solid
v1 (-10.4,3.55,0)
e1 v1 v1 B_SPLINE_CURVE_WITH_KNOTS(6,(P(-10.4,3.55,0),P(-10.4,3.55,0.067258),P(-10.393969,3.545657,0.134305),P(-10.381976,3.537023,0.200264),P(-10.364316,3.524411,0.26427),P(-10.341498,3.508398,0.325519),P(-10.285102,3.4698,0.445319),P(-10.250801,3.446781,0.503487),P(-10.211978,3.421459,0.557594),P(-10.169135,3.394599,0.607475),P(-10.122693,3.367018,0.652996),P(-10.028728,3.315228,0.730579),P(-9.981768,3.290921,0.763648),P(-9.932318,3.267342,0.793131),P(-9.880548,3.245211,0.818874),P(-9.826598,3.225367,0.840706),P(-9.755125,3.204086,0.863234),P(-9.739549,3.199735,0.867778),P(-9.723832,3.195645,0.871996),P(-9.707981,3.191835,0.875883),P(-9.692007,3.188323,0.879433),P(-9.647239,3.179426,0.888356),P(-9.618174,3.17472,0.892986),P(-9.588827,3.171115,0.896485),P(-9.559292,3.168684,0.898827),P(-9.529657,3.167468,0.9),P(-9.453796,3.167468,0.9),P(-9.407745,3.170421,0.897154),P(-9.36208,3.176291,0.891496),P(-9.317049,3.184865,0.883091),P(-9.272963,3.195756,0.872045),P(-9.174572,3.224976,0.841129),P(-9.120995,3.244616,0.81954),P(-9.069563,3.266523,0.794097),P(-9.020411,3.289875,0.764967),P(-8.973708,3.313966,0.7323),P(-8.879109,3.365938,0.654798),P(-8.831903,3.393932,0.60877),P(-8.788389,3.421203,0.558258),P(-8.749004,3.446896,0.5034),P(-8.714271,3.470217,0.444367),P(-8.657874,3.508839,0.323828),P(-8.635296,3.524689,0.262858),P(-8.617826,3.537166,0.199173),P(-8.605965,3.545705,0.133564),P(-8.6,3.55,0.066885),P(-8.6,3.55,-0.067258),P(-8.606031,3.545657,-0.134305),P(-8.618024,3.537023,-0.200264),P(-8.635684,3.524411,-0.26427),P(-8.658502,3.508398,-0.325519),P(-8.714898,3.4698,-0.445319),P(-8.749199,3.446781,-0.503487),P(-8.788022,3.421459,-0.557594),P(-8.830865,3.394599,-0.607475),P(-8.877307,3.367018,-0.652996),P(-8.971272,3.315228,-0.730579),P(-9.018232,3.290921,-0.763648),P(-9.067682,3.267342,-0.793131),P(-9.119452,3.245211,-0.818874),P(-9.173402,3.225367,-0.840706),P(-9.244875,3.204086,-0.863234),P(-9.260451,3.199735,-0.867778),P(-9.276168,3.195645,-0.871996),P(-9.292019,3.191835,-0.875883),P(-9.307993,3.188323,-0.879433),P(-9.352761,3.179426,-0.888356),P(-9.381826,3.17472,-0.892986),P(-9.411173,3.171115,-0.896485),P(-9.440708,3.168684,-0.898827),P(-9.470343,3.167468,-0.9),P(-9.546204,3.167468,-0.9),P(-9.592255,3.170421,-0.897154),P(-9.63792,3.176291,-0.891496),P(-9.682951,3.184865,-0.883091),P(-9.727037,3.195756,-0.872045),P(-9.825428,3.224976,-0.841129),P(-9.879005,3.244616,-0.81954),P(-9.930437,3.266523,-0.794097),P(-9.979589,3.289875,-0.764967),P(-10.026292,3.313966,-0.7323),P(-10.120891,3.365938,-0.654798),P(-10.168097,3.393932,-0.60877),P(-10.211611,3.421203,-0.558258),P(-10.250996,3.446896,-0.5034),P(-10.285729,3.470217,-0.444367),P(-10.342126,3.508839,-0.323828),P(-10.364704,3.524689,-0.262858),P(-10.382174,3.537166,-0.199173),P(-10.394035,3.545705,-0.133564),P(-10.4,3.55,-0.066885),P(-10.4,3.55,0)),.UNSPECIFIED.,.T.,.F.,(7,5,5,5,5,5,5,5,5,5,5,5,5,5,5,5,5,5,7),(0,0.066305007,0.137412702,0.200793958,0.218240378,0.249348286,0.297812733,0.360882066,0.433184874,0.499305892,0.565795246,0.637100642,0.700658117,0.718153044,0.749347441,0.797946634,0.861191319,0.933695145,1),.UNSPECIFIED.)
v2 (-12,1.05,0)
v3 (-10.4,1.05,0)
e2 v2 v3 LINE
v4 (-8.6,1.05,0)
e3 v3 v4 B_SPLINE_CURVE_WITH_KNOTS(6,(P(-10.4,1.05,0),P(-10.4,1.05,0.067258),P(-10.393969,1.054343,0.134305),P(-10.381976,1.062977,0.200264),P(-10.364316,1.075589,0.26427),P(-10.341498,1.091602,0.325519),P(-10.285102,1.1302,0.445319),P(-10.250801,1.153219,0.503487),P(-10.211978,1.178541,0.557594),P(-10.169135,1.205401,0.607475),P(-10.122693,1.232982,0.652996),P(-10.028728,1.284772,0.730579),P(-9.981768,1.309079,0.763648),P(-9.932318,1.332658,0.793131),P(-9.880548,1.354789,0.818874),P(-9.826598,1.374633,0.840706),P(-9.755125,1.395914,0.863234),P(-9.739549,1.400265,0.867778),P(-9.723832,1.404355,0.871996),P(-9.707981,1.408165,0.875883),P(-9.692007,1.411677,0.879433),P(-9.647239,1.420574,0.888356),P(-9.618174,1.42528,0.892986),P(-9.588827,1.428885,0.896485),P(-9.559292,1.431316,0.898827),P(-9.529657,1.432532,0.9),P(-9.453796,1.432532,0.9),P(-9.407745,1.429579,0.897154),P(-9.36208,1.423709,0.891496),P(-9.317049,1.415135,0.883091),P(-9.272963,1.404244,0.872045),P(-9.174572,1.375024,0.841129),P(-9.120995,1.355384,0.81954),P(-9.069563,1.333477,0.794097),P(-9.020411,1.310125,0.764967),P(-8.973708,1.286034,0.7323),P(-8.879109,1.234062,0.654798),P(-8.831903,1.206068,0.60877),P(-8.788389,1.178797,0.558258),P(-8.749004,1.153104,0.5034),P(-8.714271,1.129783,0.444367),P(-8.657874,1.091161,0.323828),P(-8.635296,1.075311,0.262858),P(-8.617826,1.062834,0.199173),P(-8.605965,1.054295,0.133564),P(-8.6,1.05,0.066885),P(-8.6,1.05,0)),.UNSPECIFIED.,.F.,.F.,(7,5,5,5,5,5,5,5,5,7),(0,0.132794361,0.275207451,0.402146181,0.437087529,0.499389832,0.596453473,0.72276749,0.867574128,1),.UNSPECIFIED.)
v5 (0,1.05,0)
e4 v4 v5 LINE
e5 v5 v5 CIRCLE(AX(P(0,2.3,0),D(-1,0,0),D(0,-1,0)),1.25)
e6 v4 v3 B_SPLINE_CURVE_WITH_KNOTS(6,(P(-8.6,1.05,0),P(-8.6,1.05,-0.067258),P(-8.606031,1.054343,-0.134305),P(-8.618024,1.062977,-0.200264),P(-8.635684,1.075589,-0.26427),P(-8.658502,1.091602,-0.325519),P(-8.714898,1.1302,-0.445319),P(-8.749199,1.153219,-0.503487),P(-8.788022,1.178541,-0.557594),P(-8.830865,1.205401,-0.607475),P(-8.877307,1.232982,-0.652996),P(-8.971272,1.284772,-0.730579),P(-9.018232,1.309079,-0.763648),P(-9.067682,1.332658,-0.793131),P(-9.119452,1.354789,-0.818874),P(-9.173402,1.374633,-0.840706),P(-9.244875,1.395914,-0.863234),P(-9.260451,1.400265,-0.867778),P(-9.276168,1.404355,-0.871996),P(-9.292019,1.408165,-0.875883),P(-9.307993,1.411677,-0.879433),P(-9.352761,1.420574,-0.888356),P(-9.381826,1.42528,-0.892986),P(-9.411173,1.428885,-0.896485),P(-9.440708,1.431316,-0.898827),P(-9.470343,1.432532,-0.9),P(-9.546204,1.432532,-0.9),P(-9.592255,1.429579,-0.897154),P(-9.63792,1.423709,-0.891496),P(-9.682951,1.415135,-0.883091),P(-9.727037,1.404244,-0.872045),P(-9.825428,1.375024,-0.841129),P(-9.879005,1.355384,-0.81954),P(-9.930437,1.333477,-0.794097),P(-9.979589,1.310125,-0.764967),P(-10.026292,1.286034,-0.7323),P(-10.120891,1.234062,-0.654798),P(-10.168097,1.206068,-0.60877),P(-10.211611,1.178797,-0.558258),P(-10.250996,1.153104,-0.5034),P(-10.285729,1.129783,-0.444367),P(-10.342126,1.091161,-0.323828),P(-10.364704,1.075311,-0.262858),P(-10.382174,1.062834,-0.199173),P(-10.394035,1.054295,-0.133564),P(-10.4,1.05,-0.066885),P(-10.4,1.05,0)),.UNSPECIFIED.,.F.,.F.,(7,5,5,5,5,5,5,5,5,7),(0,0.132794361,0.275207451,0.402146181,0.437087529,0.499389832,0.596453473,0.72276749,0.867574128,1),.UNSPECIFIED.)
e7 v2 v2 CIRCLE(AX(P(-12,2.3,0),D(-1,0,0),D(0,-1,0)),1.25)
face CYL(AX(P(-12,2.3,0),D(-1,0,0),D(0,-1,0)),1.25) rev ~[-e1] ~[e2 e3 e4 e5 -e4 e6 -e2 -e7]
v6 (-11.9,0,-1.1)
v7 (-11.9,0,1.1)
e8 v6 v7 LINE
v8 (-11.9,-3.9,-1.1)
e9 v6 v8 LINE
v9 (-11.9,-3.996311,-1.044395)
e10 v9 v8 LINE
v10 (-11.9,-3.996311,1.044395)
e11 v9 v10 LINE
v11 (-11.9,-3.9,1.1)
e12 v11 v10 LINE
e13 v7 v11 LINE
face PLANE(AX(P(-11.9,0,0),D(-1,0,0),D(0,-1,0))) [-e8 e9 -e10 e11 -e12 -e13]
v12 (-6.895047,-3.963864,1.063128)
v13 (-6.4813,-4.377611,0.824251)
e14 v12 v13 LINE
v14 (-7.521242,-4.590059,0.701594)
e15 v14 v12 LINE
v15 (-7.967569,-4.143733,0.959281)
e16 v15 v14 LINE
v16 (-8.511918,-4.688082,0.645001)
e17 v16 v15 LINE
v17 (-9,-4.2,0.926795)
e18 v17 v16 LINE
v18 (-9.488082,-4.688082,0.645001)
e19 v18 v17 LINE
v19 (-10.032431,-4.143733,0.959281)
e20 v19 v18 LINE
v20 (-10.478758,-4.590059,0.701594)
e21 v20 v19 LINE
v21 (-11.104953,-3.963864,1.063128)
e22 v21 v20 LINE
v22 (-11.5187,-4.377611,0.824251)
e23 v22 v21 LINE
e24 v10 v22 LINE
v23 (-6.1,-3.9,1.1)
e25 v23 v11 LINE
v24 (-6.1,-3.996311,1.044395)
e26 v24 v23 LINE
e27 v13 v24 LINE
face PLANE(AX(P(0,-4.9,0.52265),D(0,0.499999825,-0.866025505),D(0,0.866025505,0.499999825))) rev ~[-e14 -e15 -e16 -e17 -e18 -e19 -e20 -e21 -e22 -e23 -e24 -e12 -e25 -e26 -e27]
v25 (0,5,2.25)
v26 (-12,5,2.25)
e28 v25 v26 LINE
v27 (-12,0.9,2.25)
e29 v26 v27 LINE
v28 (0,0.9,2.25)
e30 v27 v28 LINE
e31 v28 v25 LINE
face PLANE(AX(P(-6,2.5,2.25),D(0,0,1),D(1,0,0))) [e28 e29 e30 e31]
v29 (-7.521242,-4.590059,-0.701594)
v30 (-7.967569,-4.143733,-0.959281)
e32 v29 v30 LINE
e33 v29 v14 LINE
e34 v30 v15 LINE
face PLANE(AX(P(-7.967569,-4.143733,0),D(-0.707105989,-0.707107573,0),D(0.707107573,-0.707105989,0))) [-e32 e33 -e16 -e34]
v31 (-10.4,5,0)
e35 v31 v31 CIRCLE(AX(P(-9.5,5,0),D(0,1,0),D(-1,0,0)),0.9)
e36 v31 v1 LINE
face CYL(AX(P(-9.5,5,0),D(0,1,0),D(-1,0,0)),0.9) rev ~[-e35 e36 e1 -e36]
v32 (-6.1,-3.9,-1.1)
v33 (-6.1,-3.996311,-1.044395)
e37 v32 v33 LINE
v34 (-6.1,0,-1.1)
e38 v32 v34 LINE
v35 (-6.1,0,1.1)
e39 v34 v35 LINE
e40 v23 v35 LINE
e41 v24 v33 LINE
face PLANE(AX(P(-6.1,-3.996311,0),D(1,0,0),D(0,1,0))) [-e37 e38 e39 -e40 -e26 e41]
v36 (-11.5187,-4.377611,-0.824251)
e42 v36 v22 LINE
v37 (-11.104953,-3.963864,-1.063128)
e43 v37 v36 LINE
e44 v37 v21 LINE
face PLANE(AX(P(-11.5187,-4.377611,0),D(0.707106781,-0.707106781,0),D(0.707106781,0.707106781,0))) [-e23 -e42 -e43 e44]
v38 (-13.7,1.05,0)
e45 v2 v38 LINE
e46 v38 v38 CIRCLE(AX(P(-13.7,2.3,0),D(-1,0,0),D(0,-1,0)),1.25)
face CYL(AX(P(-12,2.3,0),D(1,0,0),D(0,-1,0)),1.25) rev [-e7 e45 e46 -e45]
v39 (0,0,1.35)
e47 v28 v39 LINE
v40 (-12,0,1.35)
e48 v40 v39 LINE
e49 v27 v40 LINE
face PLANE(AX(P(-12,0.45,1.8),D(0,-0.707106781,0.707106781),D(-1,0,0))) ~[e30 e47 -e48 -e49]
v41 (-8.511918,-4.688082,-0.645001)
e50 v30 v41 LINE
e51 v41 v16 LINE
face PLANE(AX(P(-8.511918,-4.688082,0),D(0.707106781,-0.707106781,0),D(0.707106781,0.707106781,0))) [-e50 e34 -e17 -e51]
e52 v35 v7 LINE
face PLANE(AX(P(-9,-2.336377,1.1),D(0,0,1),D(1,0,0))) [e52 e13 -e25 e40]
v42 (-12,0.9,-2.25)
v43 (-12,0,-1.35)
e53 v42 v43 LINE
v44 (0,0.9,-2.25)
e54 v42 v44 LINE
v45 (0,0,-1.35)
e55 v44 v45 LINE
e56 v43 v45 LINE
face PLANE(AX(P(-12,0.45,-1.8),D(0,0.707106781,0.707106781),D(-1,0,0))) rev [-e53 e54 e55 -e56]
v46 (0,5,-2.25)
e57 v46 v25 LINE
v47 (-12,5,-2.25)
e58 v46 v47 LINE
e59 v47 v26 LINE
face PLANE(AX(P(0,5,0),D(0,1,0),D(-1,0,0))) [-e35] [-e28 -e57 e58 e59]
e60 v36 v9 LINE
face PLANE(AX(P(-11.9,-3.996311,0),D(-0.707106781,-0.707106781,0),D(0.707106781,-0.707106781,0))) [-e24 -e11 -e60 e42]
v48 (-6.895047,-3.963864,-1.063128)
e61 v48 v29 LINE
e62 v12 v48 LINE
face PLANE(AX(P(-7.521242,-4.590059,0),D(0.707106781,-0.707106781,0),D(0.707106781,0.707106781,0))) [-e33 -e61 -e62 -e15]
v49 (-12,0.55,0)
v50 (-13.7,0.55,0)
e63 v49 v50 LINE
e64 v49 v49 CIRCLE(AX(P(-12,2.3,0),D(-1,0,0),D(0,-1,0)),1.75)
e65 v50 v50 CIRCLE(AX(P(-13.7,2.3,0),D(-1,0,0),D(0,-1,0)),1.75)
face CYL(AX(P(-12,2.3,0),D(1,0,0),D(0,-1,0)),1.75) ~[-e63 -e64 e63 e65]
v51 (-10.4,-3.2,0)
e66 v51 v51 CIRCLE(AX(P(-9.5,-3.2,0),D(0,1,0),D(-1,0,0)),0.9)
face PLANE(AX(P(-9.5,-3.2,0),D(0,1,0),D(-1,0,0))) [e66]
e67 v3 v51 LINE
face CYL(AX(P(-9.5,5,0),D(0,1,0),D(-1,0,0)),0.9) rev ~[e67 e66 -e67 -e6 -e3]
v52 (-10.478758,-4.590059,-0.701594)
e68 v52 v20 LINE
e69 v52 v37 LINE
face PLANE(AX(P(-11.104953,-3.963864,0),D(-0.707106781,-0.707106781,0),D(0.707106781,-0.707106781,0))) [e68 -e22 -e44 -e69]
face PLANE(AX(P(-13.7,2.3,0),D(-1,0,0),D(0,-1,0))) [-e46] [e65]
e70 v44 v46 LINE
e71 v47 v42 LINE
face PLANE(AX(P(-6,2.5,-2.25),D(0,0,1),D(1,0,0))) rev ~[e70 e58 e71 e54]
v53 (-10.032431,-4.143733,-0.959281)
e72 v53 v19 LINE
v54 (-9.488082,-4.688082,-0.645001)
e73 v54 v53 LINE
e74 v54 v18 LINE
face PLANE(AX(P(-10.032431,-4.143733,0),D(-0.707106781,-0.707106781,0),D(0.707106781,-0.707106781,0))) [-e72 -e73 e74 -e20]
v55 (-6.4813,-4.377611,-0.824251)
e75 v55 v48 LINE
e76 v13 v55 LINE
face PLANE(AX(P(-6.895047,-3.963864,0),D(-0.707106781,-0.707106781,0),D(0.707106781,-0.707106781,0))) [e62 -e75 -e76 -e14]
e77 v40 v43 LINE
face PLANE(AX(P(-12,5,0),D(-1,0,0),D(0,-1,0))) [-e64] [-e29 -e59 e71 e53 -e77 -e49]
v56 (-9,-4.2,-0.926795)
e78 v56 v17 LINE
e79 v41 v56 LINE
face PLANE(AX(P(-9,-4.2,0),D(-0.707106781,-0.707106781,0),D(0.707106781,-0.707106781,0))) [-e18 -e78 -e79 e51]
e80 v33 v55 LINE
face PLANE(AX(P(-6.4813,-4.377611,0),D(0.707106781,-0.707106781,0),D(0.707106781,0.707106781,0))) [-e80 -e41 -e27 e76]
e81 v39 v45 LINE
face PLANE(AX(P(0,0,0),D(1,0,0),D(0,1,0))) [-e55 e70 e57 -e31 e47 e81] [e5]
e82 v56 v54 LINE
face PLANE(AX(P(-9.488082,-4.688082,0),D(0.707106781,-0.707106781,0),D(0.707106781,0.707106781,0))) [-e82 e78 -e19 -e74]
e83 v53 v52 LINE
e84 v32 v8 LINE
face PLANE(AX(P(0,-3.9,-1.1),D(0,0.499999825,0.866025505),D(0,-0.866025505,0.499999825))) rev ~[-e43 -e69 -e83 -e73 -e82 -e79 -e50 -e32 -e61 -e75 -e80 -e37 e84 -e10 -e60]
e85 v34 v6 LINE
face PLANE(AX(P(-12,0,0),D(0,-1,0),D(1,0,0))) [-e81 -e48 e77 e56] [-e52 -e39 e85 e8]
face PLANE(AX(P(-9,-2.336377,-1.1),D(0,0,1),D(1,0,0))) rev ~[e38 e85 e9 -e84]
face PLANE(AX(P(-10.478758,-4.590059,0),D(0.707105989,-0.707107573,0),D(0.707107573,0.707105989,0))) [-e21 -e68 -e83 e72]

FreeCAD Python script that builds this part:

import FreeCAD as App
import Part
import Sketcher
Q = App.Units.Quantity


def edges_at(feature, points):
    """Names of the edges that pass closest to the given points."""
    edges = feature.Shape.Edges
    near = lambda p: min(range(len(edges)), key=lambda i: edges[i].distToShape(Part.Vertex(*p))[0])
    return sorted({f"Edge{near(p) + 1}" for p in points})


def add_polygon(sketch, points):
    """Adds a closed chain of lines whose ends are joined by coincident constraints."""
    first, n = sketch.GeometryCount, len(points)
    for a, b in zip(points, points[1:] + points[:1]):
        sketch.addGeometry(Part.LineSegment(App.Vector(*a, 0), App.Vector(*b, 0)), False)
    for i in range(n):
        sketch.addConstraint(Sketcher.Constraint("Coincident", first + i, 2, first + (i + 1) % n, 1))

doc = App.newDocument("Part")
params = doc.addObject("Spreadsheet::Sheet", "Params")
for row, (alias, value) in enumerate([
    ("sketch1_width", "12 mm"),
    ("sketch1_height", "5 mm"),
    ("pad1_length", "4.5 mm"),
    ("sketch2_width", "5.8 mm"),
    ("pad2_length", "2.2 mm"),
    ("chamfer_size", "0.9 mm"),
    ("sketch3_width", "1 mm"),
    ("pocket1_length", "12 mm"),
    ("sketch4_diameter", "3.5 mm"),
    ("sketch4_diameter2", "2.5 mm"),
    ("pad3_length", "1.7 mm"),
    ("sketch5_diameter", "2.5 mm"),
    ("sketch6_diameter", "1.8 mm"),
    ("pocket3_length", "8.2 mm"),
], start=1):
    params.set(f"A{row}", alias)
    params.set(f"B{row}", "=" + value)
    params.setAlias(f"B{row}", alias)

body = doc.addObject("PartDesign::Body", "Body")

sketch1 = body.newObject("Sketcher::SketchObject", "Sketch")
sketch1.AttachmentSupport = (doc.getObject("XY_Plane"), [""])
sketch1.MapMode = "FlatFace"
add_polygon(sketch1, [(0, 0), (0, 5), (-12, 5), (-12, 0)])
sketch1.addConstraint([
    Sketcher.Constraint("Vertical", 0),
    Sketcher.Constraint("Horizontal", 1),
    Sketcher.Constraint("Vertical", 2),
    Sketcher.Constraint("Horizontal", 3),
    Sketcher.Constraint("Coincident", 3, 2, -1, 1),
    Sketcher.Constraint("DistanceX", 1, 2, 1, 1, Q("12 mm")),
    Sketcher.Constraint("DistanceY", 0, 1, 0, 2, Q("5 mm")),
])
sketch1.setExpression("Constraints[9]", "Params.sketch1_width")
sketch1.setExpression("Constraints[10]", "Params.sketch1_height")
pad1 = body.newObject("PartDesign::Pad", "Pad")
pad1.Profile = sketch1
pad1.setExpression("Length", "Params.pad1_length")
pad1.Midplane = True

sketch2 = body.newObject("Sketcher::SketchObject", "Sketch001")
sketch2.AttachmentSupport = (doc.getObject("XY_Plane"), [""])
sketch2.MapMode = "FlatFace"
add_polygon(sketch2, [(-6.1, -4), (-6.1, 0), (-11.9, 0), (-11.9, -4), (-11.5, -4.4), (-11.1, -4), (-10.5, -4.6), (-10, -4.1), (-9.5, -4.7), (-9, -4.2), (-8.5, -4.7), (-8, -4.1), (-7.5, -4.6), (-6.9, -4), (-6.5, -4.4)])
sketch2.addConstraint([
    Sketcher.Constraint("Vertical", 0),
    Sketcher.Constraint("Horizontal", 1),
    Sketcher.Constraint("Vertical", 2),
    Sketcher.Constraint("PointOnObject", 0, 2, -1),
    Sketcher.Constraint("Perpendicular", 3, 4),
    Sketcher.Constraint("Perpendicular", 4, 5),
    Sketcher.Constraint("Perpendicular", 5, 6),
    Sketcher.Constraint("Perpendicular", 6, 7),
    Sketcher.Constraint("Perpendicular", 7, 8),
    Sketcher.Constraint("Perpendicular", 8, 9),
    Sketcher.Constraint("Perpendicular", 9, 10),
    Sketcher.Constraint("Perpendicular", 10, 11),
    Sketcher.Constraint("Perpendicular", 11, 12),
    Sketcher.Constraint("Perpendicular", 12, 13),
    Sketcher.Constraint("Perpendicular", 13, 14),
    Sketcher.Constraint("Horizontal", 7, 2, 9, 2),
    Sketcher.Constraint("Horizontal", 6, 2, 10, 2),
    Sketcher.Constraint("Horizontal", 5, 2, 11, 2),
    Sketcher.Constraint("Horizontal", 4, 2, 12, 2),
    Sketcher.Constraint("Horizontal", 3, 2, 13, 2),
    Sketcher.Constraint("Horizontal", 2, 2, 14, 2),
    Sketcher.Constraint("Equal", 8, 9),
    Sketcher.Constraint("DistanceX", 1, 2, 1, 1, Q("5.8 mm")),
    Sketcher.Constraint("DistanceX", 8, 2, -1, 1, Q("9 mm")),
    Sketcher.Constraint("DistanceY", 8, 2, -1, 1, Q("4.2 mm")),
    Sketcher.Constraint("Distance", 6, Q("0.631201 mm")),
    Sketcher.Constraint("DistanceY", 0, 1, 0, 2, Q("3.996311 mm")),
    Sketcher.Constraint("DistanceX", 3, 2, -1, 1, Q("11.5187 mm")),
    Sketcher.Constraint("DistanceY", 5, 2, -1, 1, Q("4.590059 mm")),
    Sketcher.Constraint("DistanceX", 6, 2, -1, 1, Q("10.032431 mm")),
])
sketch2.setExpression("Constraints[37]", "Params.sketch2_width")
pad2 = body.newObject("PartDesign::Pad", "Pad001")
pad2.Profile = sketch2
pad2.setExpression("Length", "Params.pad2_length")
pad2.Midplane = True
doc.recompute()

chamfer = body.newObject("PartDesign::Chamfer", "Chamfer")
chamfer.Base = (pad2, edges_at(pad2, [(-6, 0, 2.25), (-6, 0, -2.25)]))
chamfer.setExpression("Size", "Params.chamfer_size")

sketch3 = body.newObject("Sketcher::SketchObject", "Sketch002")
sketch3.AttachmentSupport = (doc.getObject("YZ_Plane"), [""])
sketch3.MapMode = "FlatFace"
add_polygon(sketch3, [(-4.9, 0.5), (-3.9, 1.1), (-4.9, 1.1)])
add_polygon(sketch3, [(-4.9, -1.1), (-3.9, -1.1), (-4.9, -0.5)])
sketch3.addConstraint([
    Sketcher.Constraint("Horizontal", 1),
    Sketcher.Constraint("Vertical", 2),
    Sketcher.Constraint("Horizontal", 3),
    Sketcher.Constraint("Vertical", 5),
    Sketcher.Constraint("Symmetric", 0, 2, 3, 2, -1),
    Sketcher.Constraint("Symmetric", 2, 2, 4, 2, -1),
    Sketcher.Constraint("DistanceX", 1, 2, 1, 1, Q("1 mm")),
    Sketcher.Constraint("Angle", 0, Q("29.999988 deg")),
    Sketcher.Constraint("DistanceX", 0, 2, -1, 1, Q("3.9 mm")),
    Sketcher.Constraint("DistanceY", -1, 1, 0, 2, Q("1.1 mm")),
])
sketch3.setExpression("Constraints[12]", "Params.sketch3_width")
pocket1 = body.newObject("PartDesign::Pocket", "Pocket")
pocket1.Profile = sketch3
pocket1.setExpression("Length", "Params.pocket1_length")

sketch4 = body.newObject("Sketcher::SketchObject", "Sketch003")
sketch4.AttachmentSupport = (doc.getObject("YZ_Plane"), [""])
sketch4.MapMode = "FlatFace"
sketch4.AttachmentOffset = App.Placement(App.Vector(0, 0, -12), App.Rotation())
sketch4.addGeometry([
    Part.Circle(App.Vector(2.3, 0, 0), App.Vector(0, 0, 1), 1.8),
    Part.Circle(App.Vector(2.3, 0, 0), App.Vector(0, 0, 1), 1.2),
], False)
sketch4.addConstraint([
    Sketcher.Constraint("Coincident", 1, 3, 0, 3),
    Sketcher.Constraint("PointOnObject", 0, 3, -1),
    Sketcher.Constraint("Diameter", 0, Q("3.5 mm")),
    Sketcher.Constraint("Diameter", 1, Q("2.5 mm")),
    Sketcher.Constraint("DistanceX", -1, 1, 0, 3, Q("2.3 mm")),
])
sketch4.setExpression("Constraints[2]", "Params.sketch4_diameter")
sketch4.setExpression("Constraints[3]", "Params.sketch4_diameter2")
pad3 = body.newObject("PartDesign::Pad", "Pad002")
pad3.Profile = sketch4
pad3.setExpression("Length", "Params.pad3_length")
pad3.Reversed = True

sketch5 = body.newObject("Sketcher::SketchObject", "Sketch004")
sketch5.AttachmentSupport = (doc.getObject("YZ_Plane"), [""])
sketch5.MapMode = "FlatFace"
sketch5.AttachmentOffset = App.Placement(App.Vector(0, 0, -12), App.Rotation())
sketch5.addGeometry(Part.Circle(App.Vector(2.3, 0, 0), App.Vector(0, 0, 1), 1.2), False)
sketch5.addConstraint([
    Sketcher.Constraint("PointOnObject", 0, 3, -1),
    Sketcher.Constraint("Diameter", 0, Q("2.5 mm")),
    Sketcher.Constraint("DistanceX", -1, 1, 0, 3, Q("2.3 mm")),
])
sketch5.setExpression("Constraints[1]", "Params.sketch5_diameter")
pocket2 = body.newObject("PartDesign::Pocket", "Pocket001")
pocket2.Profile = sketch5
pocket2.Type = "ThroughAll"
pocket2.Reversed = True

sketch6 = body.newObject("Sketcher::SketchObject", "Sketch005")
sketch6.AttachmentSupport = (doc.getObject("XZ_Plane"), [""])
sketch6.MapMode = "FlatFace"
sketch6.AttachmentOffset = App.Placement(App.Vector(0, 0, -5), App.Rotation())
sketch6.addGeometry(Part.Circle(App.Vector(-9.5, 0, 0), App.Vector(0, 0, 1), 0.9), False)
sketch6.addConstraint([
    Sketcher.Constraint("PointOnObject", 0, 3, -1),
    Sketcher.Constraint("Diameter", 0, Q("1.8 mm")),
    Sketcher.Constraint("DistanceX", 0, 3, -1, 1, Q("9.5 mm")),
])
sketch6.setExpression("Constraints[1]", "Params.sketch6_diameter")
pocket3 = body.newObject("PartDesign::Pocket", "Pocket002")
pocket3.Profile = sketch6
pocket3.setExpression("Length", "Params.pocket3_length")
pocket3.Reversed = True

doc.recompute()
